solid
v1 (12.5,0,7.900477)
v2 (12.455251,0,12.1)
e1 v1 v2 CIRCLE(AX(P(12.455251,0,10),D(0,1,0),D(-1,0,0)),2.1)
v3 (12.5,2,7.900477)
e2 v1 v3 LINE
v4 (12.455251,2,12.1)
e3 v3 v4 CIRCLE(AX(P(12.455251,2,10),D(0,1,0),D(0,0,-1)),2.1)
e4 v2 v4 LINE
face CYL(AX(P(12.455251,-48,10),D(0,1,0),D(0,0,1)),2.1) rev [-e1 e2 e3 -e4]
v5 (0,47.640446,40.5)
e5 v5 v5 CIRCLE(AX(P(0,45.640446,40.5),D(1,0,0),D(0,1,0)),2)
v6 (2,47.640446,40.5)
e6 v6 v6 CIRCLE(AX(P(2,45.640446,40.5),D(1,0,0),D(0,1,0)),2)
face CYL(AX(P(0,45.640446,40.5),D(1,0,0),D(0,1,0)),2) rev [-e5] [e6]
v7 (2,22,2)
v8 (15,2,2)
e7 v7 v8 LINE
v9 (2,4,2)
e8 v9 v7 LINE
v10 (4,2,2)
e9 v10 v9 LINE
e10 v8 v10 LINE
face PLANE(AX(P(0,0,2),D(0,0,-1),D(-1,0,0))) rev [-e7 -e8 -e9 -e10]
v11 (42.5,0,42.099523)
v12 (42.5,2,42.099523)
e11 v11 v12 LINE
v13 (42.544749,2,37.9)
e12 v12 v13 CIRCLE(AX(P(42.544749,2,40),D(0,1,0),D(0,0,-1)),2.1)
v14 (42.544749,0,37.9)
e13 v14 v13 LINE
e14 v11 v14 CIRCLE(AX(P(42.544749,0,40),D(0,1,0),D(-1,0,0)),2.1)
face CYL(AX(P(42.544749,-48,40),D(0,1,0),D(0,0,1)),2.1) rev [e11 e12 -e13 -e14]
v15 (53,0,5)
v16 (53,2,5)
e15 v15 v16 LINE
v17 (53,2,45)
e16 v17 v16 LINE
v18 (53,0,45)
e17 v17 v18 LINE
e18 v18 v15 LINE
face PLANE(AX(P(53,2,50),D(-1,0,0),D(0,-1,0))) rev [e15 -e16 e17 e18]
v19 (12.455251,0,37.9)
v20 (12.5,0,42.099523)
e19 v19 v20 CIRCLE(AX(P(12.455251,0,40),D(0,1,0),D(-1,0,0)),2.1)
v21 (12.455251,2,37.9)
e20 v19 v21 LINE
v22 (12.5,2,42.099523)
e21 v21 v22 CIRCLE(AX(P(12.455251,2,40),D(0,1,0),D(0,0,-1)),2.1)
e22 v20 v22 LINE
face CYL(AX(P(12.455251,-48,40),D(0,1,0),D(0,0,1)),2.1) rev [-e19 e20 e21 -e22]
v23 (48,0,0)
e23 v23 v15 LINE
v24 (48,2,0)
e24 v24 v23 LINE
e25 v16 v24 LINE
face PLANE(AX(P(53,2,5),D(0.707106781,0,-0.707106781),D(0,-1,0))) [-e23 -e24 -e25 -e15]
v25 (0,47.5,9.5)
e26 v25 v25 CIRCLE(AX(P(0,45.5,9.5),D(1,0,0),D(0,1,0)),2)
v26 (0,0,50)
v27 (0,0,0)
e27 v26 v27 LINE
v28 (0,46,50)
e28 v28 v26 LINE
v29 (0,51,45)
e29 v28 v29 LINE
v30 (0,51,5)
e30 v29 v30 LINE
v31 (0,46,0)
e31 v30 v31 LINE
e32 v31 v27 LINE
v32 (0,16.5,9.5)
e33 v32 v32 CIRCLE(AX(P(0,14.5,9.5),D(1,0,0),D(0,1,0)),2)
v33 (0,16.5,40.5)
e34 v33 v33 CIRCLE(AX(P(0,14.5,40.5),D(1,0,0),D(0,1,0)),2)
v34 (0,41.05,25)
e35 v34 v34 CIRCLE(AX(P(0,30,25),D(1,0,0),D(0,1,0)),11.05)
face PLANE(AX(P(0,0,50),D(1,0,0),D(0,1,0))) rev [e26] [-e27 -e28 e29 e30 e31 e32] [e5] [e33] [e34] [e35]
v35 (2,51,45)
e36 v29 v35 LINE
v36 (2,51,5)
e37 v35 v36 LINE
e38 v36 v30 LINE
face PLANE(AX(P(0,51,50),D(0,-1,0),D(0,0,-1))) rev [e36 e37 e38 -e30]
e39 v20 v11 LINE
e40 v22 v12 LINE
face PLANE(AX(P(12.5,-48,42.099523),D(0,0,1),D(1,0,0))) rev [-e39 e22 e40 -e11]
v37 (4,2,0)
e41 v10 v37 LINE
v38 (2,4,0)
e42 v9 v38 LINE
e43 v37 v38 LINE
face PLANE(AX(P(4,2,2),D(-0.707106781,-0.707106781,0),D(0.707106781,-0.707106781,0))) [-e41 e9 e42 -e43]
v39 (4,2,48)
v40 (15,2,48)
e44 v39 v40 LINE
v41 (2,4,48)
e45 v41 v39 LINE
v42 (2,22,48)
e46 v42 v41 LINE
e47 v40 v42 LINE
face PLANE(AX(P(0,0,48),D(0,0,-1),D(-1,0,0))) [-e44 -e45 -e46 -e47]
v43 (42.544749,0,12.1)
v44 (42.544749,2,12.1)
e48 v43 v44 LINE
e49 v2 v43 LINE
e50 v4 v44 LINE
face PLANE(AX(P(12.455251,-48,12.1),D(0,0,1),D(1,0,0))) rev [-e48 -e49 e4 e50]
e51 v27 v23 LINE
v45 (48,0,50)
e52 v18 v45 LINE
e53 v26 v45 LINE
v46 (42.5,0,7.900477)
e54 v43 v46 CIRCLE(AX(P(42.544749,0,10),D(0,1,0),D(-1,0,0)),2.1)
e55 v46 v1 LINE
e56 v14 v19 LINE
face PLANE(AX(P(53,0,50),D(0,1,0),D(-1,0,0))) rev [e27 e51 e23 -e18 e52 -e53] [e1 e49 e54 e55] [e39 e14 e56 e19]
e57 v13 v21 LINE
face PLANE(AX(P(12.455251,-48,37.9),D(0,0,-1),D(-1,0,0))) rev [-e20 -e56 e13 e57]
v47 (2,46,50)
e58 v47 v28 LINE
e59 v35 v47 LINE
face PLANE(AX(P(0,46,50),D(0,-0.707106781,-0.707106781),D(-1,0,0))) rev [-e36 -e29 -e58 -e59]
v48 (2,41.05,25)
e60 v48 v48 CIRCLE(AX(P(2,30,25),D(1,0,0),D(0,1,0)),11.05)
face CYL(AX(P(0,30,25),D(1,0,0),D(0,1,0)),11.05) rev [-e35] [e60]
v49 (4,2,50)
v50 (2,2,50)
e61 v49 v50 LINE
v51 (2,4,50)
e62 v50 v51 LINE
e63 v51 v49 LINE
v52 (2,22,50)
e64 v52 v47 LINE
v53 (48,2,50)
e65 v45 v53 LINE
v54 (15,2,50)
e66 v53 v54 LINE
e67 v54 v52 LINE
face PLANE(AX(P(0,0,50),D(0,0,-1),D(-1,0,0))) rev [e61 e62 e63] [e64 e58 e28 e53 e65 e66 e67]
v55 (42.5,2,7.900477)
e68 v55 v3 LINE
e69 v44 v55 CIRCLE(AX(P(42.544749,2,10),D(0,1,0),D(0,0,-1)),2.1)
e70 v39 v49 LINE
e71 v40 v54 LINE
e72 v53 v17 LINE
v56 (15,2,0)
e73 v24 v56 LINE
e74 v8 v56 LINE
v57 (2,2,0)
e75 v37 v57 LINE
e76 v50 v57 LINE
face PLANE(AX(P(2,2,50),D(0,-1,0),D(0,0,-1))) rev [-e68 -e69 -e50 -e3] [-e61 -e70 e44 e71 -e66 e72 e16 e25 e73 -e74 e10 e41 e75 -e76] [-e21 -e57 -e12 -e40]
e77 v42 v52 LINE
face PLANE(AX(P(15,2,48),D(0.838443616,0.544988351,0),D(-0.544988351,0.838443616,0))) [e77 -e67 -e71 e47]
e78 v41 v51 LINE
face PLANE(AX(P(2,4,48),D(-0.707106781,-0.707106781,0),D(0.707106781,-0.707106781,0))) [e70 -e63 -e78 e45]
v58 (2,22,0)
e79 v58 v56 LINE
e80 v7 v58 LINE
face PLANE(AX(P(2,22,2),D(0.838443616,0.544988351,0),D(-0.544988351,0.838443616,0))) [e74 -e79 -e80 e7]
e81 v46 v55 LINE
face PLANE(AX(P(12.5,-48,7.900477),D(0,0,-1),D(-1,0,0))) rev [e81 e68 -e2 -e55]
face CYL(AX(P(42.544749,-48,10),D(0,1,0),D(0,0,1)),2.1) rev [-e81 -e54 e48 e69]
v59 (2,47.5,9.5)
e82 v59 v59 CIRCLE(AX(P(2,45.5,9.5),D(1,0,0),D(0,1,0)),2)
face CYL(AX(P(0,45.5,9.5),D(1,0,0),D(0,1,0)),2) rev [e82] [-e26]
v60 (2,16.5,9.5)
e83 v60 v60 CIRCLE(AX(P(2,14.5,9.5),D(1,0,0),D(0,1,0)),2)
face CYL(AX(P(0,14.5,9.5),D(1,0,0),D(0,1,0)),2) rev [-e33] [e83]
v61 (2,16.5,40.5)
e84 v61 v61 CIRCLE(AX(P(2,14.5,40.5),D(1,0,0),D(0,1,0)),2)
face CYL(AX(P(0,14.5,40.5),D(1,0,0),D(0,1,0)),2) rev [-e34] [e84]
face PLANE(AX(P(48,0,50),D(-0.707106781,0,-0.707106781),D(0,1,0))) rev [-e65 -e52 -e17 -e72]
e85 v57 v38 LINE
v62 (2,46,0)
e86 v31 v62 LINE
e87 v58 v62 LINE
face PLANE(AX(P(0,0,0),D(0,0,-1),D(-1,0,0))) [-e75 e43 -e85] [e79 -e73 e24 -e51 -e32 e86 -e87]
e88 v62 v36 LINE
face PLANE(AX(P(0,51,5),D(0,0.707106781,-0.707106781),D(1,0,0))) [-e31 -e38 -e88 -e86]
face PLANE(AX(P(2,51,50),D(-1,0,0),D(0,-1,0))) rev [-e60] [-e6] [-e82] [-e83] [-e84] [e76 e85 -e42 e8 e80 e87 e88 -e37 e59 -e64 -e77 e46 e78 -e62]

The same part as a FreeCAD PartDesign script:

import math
import FreeCAD as App
import Part
import Sketcher
Q = App.Units.Quantity


def edges_at(feature, points):
    """Names of the edges that pass closest to the given points."""
    edges = feature.Shape.Edges
    near = lambda p: min(range(len(edges)), key=lambda i: edges[i].distToShape(Part.Vertex(*p))[0])
    return sorted({f"Edge{near(p) + 1}" for p in points})


def add_polygon(sketch, points):
    """Adds a closed chain of lines whose ends are joined by coincident constraints."""
    first, n = sketch.GeometryCount, len(points)
    for a, b in zip(points, points[1:] + points[:1]):
        sketch.addGeometry(Part.LineSegment(App.Vector(*a, 0), App.Vector(*b, 0)), False)
    for i in range(n):
        sketch.addConstraint(Sketcher.Constraint("Coincident", first + i, 2, first + (i + 1) % n, 1))

doc = App.newDocument("Part")
body = doc.addObject("PartDesign::Body", "Body")

sketch1 = body.newObject("Sketcher::SketchObject", "Sketch")
sketch1.AttachmentSupport = (doc.getObject("XY_Plane"), [""])
sketch1.MapMode = "FlatFace"
add_polygon(sketch1, [(0, 51), (0, 0), (53, 0), (53, 2), (2, 2), (2, 51)])
sketch1.addConstraint(Sketcher.Constraint("Vertical", 0))
sketch1.addConstraint(Sketcher.Constraint("Horizontal", 1))
sketch1.addConstraint(Sketcher.Constraint("Vertical", 2))
sketch1.addConstraint(Sketcher.Constraint("Horizontal", 3))
sketch1.addConstraint(Sketcher.Constraint("Vertical", 4))
sketch1.addConstraint(Sketcher.Constraint("Horizontal", 5))
sketch1.addConstraint(Sketcher.Constraint("Coincident", 0, 2, -1, 1))
sketch1.addConstraint(Sketcher.Constraint("Equal", 3, 0))
sketch1.addConstraint(Sketcher.Constraint("Equal", 5, 2))
sketch1.addConstraint(Sketcher.Constraint("DistanceX", 1, 1, 1, 2, 53.0))
sketch1.addConstraint(Sketcher.Constraint("DistanceX", 3, 2, 3, 1, 51.0))
pad1 = body.newObject("PartDesign::Pad", "Pad")
pad1.Profile = sketch1
pad1.Length = 50

sketch2 = body.newObject("Sketcher::SketchObject", "Sketch001")
sketch2.AttachmentSupport = (doc.getObject("YZ_Plane"), [""])
sketch2.MapMode = "FlatFace"
sketch2.AttachmentOffset = App.Placement(App.Vector(0, 0, 2), App.Rotation())
sketch2.addGeometry(Part.Circle(App.Vector(30, 25, 0), App.Vector(0, 0, 1), 11.05), False)
sketch2.addGeometry(Part.Circle(App.Vector(45.640446, 40.5, 0), App.Vector(0, 0, 1), 2), False)
sketch2.addGeometry(Part.Circle(App.Vector(45.5, 9.5, 0), App.Vector(0, 0, 1), 2), False)
sketch2.addGeometry(Part.Circle(App.Vector(14.5, 40.5, 0), App.Vector(0, 0, 1), 2), False)
sketch2.addGeometry(Part.Circle(App.Vector(14.5, 9.5, 0), App.Vector(0, 0, 1), 2), False)
sketch2.addConstraint(Sketcher.Constraint("Equal", 1, 2))
sketch2.addConstraint(Sketcher.Constraint("Equal", 2, 3))
sketch2.addConstraint(Sketcher.Constraint("Equal", 3, 4))
sketch2.addConstraint(Sketcher.Constraint("Horizontal", 1, 3, 3, 3))
sketch2.addConstraint(Sketcher.Constraint("Horizontal", 2, 3, 4, 3))
sketch2.addConstraint(Sketcher.Constraint("Vertical", 3, 3, 4, 3))
sketch2.addConstraint(Sketcher.Constraint("Diameter", 1, 4.0))
sketch2.addConstraint(Sketcher.Constraint("Diameter", 0, 22.1))
sketch2.addConstraint(Sketcher.Constraint("DistanceX", -1, 1, 0, 3, 30.0))
sketch2.addConstraint(Sketcher.Constraint("DistanceY", -1, 1, 0, 3, 25.0))
sketch2.addConstraint(Sketcher.Constraint("DistanceY", 2, 3, 1, 3, 31.0))
sketch2.addConstraint(Sketcher.Constraint("DistanceX", 3, 3, 2, 3, 31.0))
sketch2.addConstraint(Sketcher.Constraint("DistanceY", -1, 1, 1, 3, 40.5))
sketch2.addConstraint(Sketcher.Constraint("DistanceX", -1, 1, 2, 3, 45.5))
sketch2.addConstraint(Sketcher.Constraint("DistanceX", -1, 1, 1, 3, 45.640446))
pocket1 = body.newObject("PartDesign::Pocket", "Pocket")
pocket1.Profile = sketch2
pocket1.Type = "ThroughAll"

sketch3 = body.newObject("Sketcher::SketchObject", "Sketch002")
sketch3.AttachmentSupport = (doc.getObject("XZ_Plane"), [""])
sketch3.MapMode = "FlatFace"
sketch3.AttachmentOffset = App.Placement(App.Vector(0, 0, -2), App.Rotation())
sketch3.addGeometry(Part.LineSegment(App.Vector(12.455251, 12.1, 0), App.Vector(42.544749, 12.1, 0)), False)
sketch3.addGeometry(Part.ArcOfCircle(Part.Circle(App.Vector(42.544749, 10, 0), App.Vector(0, 0, 1), 2.1), math.radians(-91.221011), math.radians(90)), False)
sketch3.addGeometry(Part.LineSegment(App.Vector(42.5, 7.900477, 0), App.Vector(12.5, 7.900477, 0)), False)
sketch3.addGeometry(Part.ArcOfCircle(Part.Circle(App.Vector(12.455251, 10, 0), App.Vector(0, 0, 1), 2.1), math.radians(90), math.radians(271.221011)), False)
sketch3.addGeometry(Part.LineSegment(App.Vector(12.5, 42.099523, 0), App.Vector(42.5, 42.099523, 0)), False)
sketch3.addGeometry(Part.ArcOfCircle(Part.Circle(App.Vector(42.544749, 40, 0), App.Vector(0, 0, 1), 2.1), math.radians(-90), math.radians(91.221011)), False)
sketch3.addGeometry(Part.LineSegment(App.Vector(42.544749, 37.9, 0), App.Vector(12.455251, 37.9, 0)), False)
sketch3.addGeometry(Part.ArcOfCircle(Part.Circle(App.Vector(12.455251, 40, 0), App.Vector(0, 0, 1), 2.1), math.radians(88.778989), math.radians(270)), False)
sketch3.addConstraint(Sketcher.Constraint("Tangent", 0, 2, 1, 2))
sketch3.addConstraint(Sketcher.Constraint("Coincident", 1, 1, 2, 1))
sketch3.addConstraint(Sketcher.Constraint("Coincident", 2, 2, 3, 2))
sketch3.addConstraint(Sketcher.Constraint("Tangent", 3, 1, 0, 1))
sketch3.addConstraint(Sketcher.Constraint("Coincident", 4, 2, 5, 2))
sketch3.addConstraint(Sketcher.Constraint("Tangent", 5, 1, 6, 1))
sketch3.addConstraint(Sketcher.Constraint("Tangent", 6, 2, 7, 2))
sketch3.addConstraint(Sketcher.Constraint("Coincident", 7, 1, 4, 1))
sketch3.addConstraint(Sketcher.Constraint("Horizontal", 0))
sketch3.addConstraint(Sketcher.Constraint("Horizontal", 2))
sketch3.addConstraint(Sketcher.Constraint("Horizontal", 4))
sketch3.addConstraint(Sketcher.Constraint("Horizontal", 6))
sketch3.addConstraint(Sketcher.Constraint("Equal", 1, 3))
sketch3.addConstraint(Sketcher.Constraint("Equal", 3, 5))
sketch3.addConstraint(Sketcher.Constraint("Equal", 5, 7))
sketch3.addConstraint(Sketcher.Constraint("Vertical", 1, 3, 5, 3))
sketch3.addConstraint(Sketcher.Constraint("Vertical", 3, 3, 7, 3))
sketch3.addConstraint(Sketcher.Constraint("Vertical", 1, 1, 4, 2))
sketch3.addConstraint(Sketcher.Constraint("Radius", 1, 2.1))
sketch3.addConstraint(Sketcher.Constraint("DistanceX", 2, 2, 2, 1, 30.0))
sketch3.addConstraint(Sketcher.Constraint("DistanceY", -1, 1, 1, 3, 10.0))
sketch3.addConstraint(Sketcher.Constraint("DistanceY", -1, 1, 5, 3, 40.0))
sketch3.addConstraint(Sketcher.Constraint("DistanceX", -1, 1, 1, 1, 42.5))
sketch3.addConstraint(Sketcher.Constraint("DistanceX", 0, 1, 0, 2, 30.089498))
pocket2 = body.newObject("PartDesign::Pocket", "Pocket001")
pocket2.Profile = sketch3
pocket2.Length = 50
pocket2.Reversed = True

sketch4 = body.newObject("Sketcher::SketchObject", "Sketch003")
sketch4.AttachmentSupport = (doc.getObject("XY_Plane"), [""])
sketch4.MapMode = "FlatFace"
sketch4.AttachmentOffset = App.Placement(App.Vector(0, 0, 50), App.Rotation())
add_polygon(sketch4, [(2, 22), (2, 4), (4, 2), (15, 2)])
sketch4.addConstraint(Sketcher.Constraint("Vertical", 0))
sketch4.addConstraint(Sketcher.Constraint("Horizontal", 2))
sketch4.addConstraint(Sketcher.Constraint("DistanceX", 2, 1, 2, 2, 11.0))
sketch4.addConstraint(Sketcher.Constraint("DistanceY", 0, 2, 0, 1, 18.0))
sketch4.addConstraint(Sketcher.Constraint("Angle", 1, Q("-45 deg")))
sketch4.addConstraint(Sketcher.Constraint("DistanceX", -1, 1, 0, 2, 2.0))
sketch4.addConstraint(Sketcher.Constraint("DistanceY", -1, 1, 0, 2, 4.0))
sketch4.addConstraint(Sketcher.Constraint("DistanceX", -1, 1, 1, 2, 4.0))
pad2 = body.newObject("PartDesign::Pad", "Pad001")
pad2.Profile = sketch4
pad2.Length = 2
pad2.Reversed = True

sketch5 = body.newObject("Sketcher::SketchObject", "Sketch004")
sketch5.AttachmentSupport = (doc.getObject("XY_Plane"), [""])
sketch5.MapMode = "FlatFace"
add_polygon(sketch5, [(4, 2), (2, 4), (2, 22), (15, 2)])
sketch5.addConstraint(Sketcher.Constraint("Vertical", 1))
sketch5.addConstraint(Sketcher.Constraint("Horizontal", 3))
sketch5.addConstraint(Sketcher.Constraint("DistanceX", 3, 2, 3, 1, 11.0))
sketch5.addConstraint(Sketcher.Constraint("DistanceY", 1, 1, 1, 2, 18.0))
sketch5.addConstraint(Sketcher.Constraint("Angle", 0, Q("135 deg")))
sketch5.addConstraint(Sketcher.Constraint("DistanceX", -1, 1, 0, 2, 2.0))
sketch5.addConstraint(Sketcher.Constraint("DistanceY", -1, 1, 0, 2, 4.0))
sketch5.addConstraint(Sketcher.Constraint("DistanceX", -1, 1, 2, 2, 15.0))
pad3 = body.newObject("PartDesign::Pad", "Pad002")
pad3.Profile = sketch5
pad3.Length = 2
doc.recompute()

chamfer = body.newObject("PartDesign::Chamfer", "Chamfer")
chamfer.Base = (pad3, edges_at(pad3, [
    (1, 51, 50),
    (1, 51, 0),
    (53, 1, 50),
    (53, 1, 0),
]))
chamfer.Size = 5

doc.recompute()
